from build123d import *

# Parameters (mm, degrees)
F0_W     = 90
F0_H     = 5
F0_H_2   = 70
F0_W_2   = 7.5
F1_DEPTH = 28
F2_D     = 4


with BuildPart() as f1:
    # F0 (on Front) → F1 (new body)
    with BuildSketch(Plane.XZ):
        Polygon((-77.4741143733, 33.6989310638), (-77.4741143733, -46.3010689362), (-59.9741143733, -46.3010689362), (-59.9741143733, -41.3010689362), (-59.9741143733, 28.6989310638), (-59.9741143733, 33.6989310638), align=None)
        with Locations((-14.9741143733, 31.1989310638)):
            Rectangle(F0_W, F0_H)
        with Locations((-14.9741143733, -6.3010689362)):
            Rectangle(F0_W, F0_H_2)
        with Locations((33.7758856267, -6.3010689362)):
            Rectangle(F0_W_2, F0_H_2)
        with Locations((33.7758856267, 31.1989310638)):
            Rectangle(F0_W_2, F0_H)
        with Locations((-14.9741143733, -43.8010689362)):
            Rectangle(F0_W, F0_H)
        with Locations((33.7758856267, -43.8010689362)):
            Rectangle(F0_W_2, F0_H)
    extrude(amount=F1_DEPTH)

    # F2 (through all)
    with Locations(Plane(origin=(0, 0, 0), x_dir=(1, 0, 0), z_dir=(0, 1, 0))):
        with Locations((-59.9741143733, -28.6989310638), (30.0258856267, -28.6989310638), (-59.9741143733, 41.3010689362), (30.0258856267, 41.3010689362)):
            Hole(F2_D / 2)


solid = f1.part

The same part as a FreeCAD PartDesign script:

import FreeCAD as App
import Part
import Sketcher

V = App.Vector


def add_polygon(sketch, points):
    """Adds a closed chain of lines whose ends are joined by coincident constraints."""
    first, n = sketch.GeometryCount, len(points)
    for a, b in zip(points, points[1:] + points[:1]):
        sketch.addGeometry(Part.LineSegment(App.Vector(*a, 0), App.Vector(*b, 0)), False)
    for i in range(n):
        sketch.addConstraint(Sketcher.Constraint("Coincident", first + i, 2, first + (i + 1) % n, 1))

doc = App.newDocument("Part")
params = doc.addObject("Spreadsheet::Sheet", "Params")
for row, (alias, value) in enumerate([
    ("sketch1_width", "115 mm"),
    ("sketch1_height", "80 mm"),
    ("pad1_length", "28 mm"),
    ("sketch2_diameter", "4 mm"),
    ("hole_diameter", "4 mm"),
], start=1):
    params.set(f"A{row}", alias)
    params.set(f"B{row}", "=" + value)
    params.setAlias(f"B{row}", alias)

body = doc.addObject("PartDesign::Body", "Body")

# Sketch on XZ plane
sketch1 = body.newObject("Sketcher::SketchObject", "Sketch")
sketch1.AttachmentSupport = (doc.getObject("XZ_Plane"), [""])
sketch1.MapMode = "FlatFace"
add_polygon(sketch1, [(-77.474114, 33.698931), (-77.474114, -46.301069), (37.525886, -46.301069), (37.525886, 33.698931)])  # lines 0-3
sketch1.addConstraint([
    Sketcher.Constraint("Vertical", 0),
    Sketcher.Constraint("Horizontal", 1),
    Sketcher.Constraint("Vertical", 2),
    Sketcher.Constraint("Horizontal", 3),
    Sketcher.Constraint("DistanceX", 1, 1, 1, 2, 115.0),
    Sketcher.Constraint("DistanceY", 0, 2, 0, 1, 80.0),
    Sketcher.Constraint("DistanceY", 0, 2, -1, 1, 46.301069),
    Sketcher.Constraint("DistanceX", 0, 2, -1, 1, 77.474114),
])
sketch1.setExpression("Constraints[8]", "Params.sketch1_width")
sketch1.setExpression("Constraints[9]", "Params.sketch1_height")
pad1 = body.newObject("PartDesign::Pad", "Pad")
pad1.Profile = sketch1
pad1.setExpression("Length", "Params.pad1_length")

# Sketch on XZ plane
sketch2 = body.newObject("Sketcher::SketchObject", "Sketch001")
sketch2.AttachmentSupport = (doc.getObject("XZ_Plane"), [""])
sketch2.MapMode = "FlatFace"
sketch2.addGeometry([
    Part.Circle(V(-59.974114, 28.698931, 0), V(0, 0, 1), 2),
    Part.Circle(V(30.025886, 28.698931, 0), V(0, 0, 1), 2),
    Part.Circle(V(-59.974114, -41.301069, 0), V(0, 0, 1), 2),
    Part.Circle(V(30.025886, -41.301069, 0), V(0, 0, 1), 2),
], False)
sketch2.addConstraint([
    Sketcher.Constraint("Equal", 0, 1),
    Sketcher.Constraint("Equal", 1, 2),
    Sketcher.Constraint("Equal", 2, 3),
    Sketcher.Constraint("Horizontal", 0, 3, 1, 3),
    Sketcher.Constraint("Horizontal", 2, 3, 3, 3),
    Sketcher.Constraint("Vertical", 0, 3, 2, 3),
    Sketcher.Constraint("Vertical", 1, 3, 3, 3),
    Sketcher.Constraint("Diameter", 0, 4.0),
    Sketcher.Constraint("DistanceX", 0, 3, 1, 3, 90.0),
    Sketcher.Constraint("DistanceY", 2, 3, 0, 3, 70.0),
    Sketcher.Constraint("DistanceY", -1, 1, 0, 3, 28.698931),
    Sketcher.Constraint("DistanceX", 0, 3, -1, 1, 59.974114),
])
sketch2.setExpression("Constraints[7]", "Params.sketch2_diameter")
doc.recompute()
hole = body.newObject("PartDesign::Hole", "Hole")
hole.Profile = sketch2
hole.ThreadType = "None"
hole.setExpression("Diameter", "Params.hole_diameter")
hole.DepthType = "ThroughAll"
hole.Reversed = True

doc.recompute()
